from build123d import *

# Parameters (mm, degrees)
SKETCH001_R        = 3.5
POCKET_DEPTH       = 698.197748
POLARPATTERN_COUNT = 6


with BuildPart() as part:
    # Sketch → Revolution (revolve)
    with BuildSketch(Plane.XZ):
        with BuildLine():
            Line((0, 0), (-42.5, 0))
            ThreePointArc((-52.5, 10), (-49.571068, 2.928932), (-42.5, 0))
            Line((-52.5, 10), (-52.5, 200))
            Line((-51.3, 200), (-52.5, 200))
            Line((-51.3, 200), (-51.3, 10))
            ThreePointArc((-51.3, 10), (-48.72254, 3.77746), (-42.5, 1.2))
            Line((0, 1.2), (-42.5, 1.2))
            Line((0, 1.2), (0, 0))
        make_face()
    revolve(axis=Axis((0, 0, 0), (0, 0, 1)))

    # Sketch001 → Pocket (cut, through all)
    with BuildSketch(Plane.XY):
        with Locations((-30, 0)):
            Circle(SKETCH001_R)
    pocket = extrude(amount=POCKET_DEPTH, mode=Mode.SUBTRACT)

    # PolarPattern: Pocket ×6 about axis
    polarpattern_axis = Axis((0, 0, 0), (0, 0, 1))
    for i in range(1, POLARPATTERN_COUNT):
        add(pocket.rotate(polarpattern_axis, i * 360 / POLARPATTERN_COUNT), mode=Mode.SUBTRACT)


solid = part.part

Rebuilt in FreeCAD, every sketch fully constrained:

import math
import FreeCAD as App
import Part
import Sketcher
from FreeCAD import Vector
Q = App.Units.Quantity

doc = App.newDocument("Part")
body = doc.addObject("PartDesign::Body", "Body")

# Sketch on XZ plane
sketch1 = body.newObject("Sketcher::SketchObject", "Sketch")
sketch1.AttachmentSupport = (doc.getObject("XZ_Plane"), [""])
sketch1.MapMode = "FlatFace"
sketch1.addGeometry([
    Part.LineSegment(Vector(-42.5, 0, 0), Vector(0, 0, 0)),  # 0
    Part.LineSegment(Vector(0, 0, 0), Vector(0, 1.2, 0)),  # 1
    Part.LineSegment(Vector(0, 1.2, 0), Vector(-42.5, 1.2, 0)),  # 2
    Part.ArcOfCircle(Part.Circle(Vector(-42.5, 10, 0), Vector(0, 0, 1), 8.8), math.radians(180), math.radians(270)),  # 3
    Part.LineSegment(Vector(-51.3, 10, 0), Vector(-51.3, 200, 0)),  # 4
    Part.LineSegment(Vector(-51.3, 200, 0), Vector(-52.5, 200, 0)),  # 5
    Part.LineSegment(Vector(-52.5, 200, 0), Vector(-52.5, 10, 0)),  # 6
    Part.ArcOfCircle(Part.Circle(Vector(-42.5, 10, 0), Vector(0, 0, 1), 10), math.radians(180), math.radians(270)),  # 7
], False)
sketch1.addConstraint([
    Sketcher.Constraint("Coincident", 0, 2, 1, 1),
    Sketcher.Constraint("Coincident", 1, 2, 2, 1),
    Sketcher.Constraint("Tangent", 2, 2, 3, 2),
    Sketcher.Constraint("Tangent", 3, 1, 4, 1),
    Sketcher.Constraint("Coincident", 4, 2, 5, 1),
    Sketcher.Constraint("Coincident", 5, 2, 6, 1),
    Sketcher.Constraint("Tangent", 6, 2, 7, 1),
    Sketcher.Constraint("Tangent", 7, 2, 0, 1),
    Sketcher.Constraint("Horizontal", 0),
    Sketcher.Constraint("Vertical", 1),
    Sketcher.Constraint("Horizontal", 2),
    Sketcher.Constraint("Vertical", 4),
    Sketcher.Constraint("Horizontal", 5),
    Sketcher.Constraint("Vertical", 6),
    Sketcher.Constraint("Coincident", 0, 2, -1, 1),
    Sketcher.Constraint("Coincident", 7, 3, 3, 3),
    Sketcher.Constraint("Radius", 7, Q("9.999999 mm")),
    Sketcher.Constraint("Radius", 3, Q("8.799999 mm")),
    Sketcher.Constraint("DistanceY", 4, 1, 4, 2, Q("190 mm")),
    Sketcher.Constraint("DistanceX", 0, 1, 0, 2, Q("42.5 mm")),
])
revolution = body.newObject("PartDesign::Revolution", "Revolution")
revolution.Profile = sketch1
revolution.ReferenceAxis = (sketch1, ["V_Axis"])
revolution.Angle = 360

# Sketch on XY plane
sketch2 = body.newObject("Sketcher::SketchObject", "Sketch001")
sketch2.AttachmentSupport = (doc.getObject("XY_Plane"), [""])
sketch2.MapMode = "FlatFace"
sketch2.addGeometry(Part.Circle(Vector(-30, 0, 0), Vector(0, 0, 1), 3.5), False)
sketch2.addConstraint([
    Sketcher.Constraint("PointOnObject", 0, 3, -1),
    Sketcher.Constraint("Diameter", 0, Q("7 mm")),
    Sketcher.Constraint("DistanceX", 0, 3, -1, 1, Q("30 mm")),
])
pocket1 = body.newObject("PartDesign::Pocket", "Pocket")
pocket1.Profile = sketch2
pocket1.Type = "ThroughAll"
pocket1.Reversed = True
doc.recompute()

polarpattern = body.newObject("PartDesign::PolarPattern", "PolarPattern")
polarpattern.Originals = [pocket1]
polarpattern.Axis = (doc.getObject("Z_Axis"), [""])
polarpattern.Angle = 360
polarpattern.Occurrences = 6
body.Tip = polarpattern

doc.recompute()
